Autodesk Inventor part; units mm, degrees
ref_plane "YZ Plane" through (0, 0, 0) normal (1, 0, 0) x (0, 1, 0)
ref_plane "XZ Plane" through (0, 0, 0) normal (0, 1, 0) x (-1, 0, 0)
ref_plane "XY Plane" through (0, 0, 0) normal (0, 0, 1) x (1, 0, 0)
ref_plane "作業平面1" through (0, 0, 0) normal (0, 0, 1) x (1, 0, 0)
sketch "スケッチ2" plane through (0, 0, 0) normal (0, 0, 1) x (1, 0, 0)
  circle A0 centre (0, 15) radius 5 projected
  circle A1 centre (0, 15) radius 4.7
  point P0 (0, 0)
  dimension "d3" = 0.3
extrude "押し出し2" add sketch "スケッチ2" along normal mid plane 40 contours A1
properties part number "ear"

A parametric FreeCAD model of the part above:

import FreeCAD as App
import Part
import Sketcher

doc = App.newDocument("Part")
body = doc.addObject("PartDesign::Body", "Body")

# Sketch on XY plane
sketch1 = body.newObject("Sketcher::SketchObject", "Sketch")
sketch1.AttachmentSupport = (doc.getObject("XY_Plane"), [""])
sketch1.MapMode = "FlatFace"
sketch1.addGeometry(Part.Circle(App.Vector(0, 15, 0), App.Vector(0, 0, 1), 4.7), False)
sketch1.addConstraint([
    Sketcher.Constraint("PointOnObject", 0, 3, -2),
    Sketcher.Constraint("Diameter", 0, 9.4),
    Sketcher.Constraint("DistanceY", -1, 1, 0, 3, 15.0),
])
pad1 = body.newObject("PartDesign::Pad", "Pad")
pad1.Profile = sketch1
pad1.Length = 40
pad1.Midplane = True

doc.recompute()
